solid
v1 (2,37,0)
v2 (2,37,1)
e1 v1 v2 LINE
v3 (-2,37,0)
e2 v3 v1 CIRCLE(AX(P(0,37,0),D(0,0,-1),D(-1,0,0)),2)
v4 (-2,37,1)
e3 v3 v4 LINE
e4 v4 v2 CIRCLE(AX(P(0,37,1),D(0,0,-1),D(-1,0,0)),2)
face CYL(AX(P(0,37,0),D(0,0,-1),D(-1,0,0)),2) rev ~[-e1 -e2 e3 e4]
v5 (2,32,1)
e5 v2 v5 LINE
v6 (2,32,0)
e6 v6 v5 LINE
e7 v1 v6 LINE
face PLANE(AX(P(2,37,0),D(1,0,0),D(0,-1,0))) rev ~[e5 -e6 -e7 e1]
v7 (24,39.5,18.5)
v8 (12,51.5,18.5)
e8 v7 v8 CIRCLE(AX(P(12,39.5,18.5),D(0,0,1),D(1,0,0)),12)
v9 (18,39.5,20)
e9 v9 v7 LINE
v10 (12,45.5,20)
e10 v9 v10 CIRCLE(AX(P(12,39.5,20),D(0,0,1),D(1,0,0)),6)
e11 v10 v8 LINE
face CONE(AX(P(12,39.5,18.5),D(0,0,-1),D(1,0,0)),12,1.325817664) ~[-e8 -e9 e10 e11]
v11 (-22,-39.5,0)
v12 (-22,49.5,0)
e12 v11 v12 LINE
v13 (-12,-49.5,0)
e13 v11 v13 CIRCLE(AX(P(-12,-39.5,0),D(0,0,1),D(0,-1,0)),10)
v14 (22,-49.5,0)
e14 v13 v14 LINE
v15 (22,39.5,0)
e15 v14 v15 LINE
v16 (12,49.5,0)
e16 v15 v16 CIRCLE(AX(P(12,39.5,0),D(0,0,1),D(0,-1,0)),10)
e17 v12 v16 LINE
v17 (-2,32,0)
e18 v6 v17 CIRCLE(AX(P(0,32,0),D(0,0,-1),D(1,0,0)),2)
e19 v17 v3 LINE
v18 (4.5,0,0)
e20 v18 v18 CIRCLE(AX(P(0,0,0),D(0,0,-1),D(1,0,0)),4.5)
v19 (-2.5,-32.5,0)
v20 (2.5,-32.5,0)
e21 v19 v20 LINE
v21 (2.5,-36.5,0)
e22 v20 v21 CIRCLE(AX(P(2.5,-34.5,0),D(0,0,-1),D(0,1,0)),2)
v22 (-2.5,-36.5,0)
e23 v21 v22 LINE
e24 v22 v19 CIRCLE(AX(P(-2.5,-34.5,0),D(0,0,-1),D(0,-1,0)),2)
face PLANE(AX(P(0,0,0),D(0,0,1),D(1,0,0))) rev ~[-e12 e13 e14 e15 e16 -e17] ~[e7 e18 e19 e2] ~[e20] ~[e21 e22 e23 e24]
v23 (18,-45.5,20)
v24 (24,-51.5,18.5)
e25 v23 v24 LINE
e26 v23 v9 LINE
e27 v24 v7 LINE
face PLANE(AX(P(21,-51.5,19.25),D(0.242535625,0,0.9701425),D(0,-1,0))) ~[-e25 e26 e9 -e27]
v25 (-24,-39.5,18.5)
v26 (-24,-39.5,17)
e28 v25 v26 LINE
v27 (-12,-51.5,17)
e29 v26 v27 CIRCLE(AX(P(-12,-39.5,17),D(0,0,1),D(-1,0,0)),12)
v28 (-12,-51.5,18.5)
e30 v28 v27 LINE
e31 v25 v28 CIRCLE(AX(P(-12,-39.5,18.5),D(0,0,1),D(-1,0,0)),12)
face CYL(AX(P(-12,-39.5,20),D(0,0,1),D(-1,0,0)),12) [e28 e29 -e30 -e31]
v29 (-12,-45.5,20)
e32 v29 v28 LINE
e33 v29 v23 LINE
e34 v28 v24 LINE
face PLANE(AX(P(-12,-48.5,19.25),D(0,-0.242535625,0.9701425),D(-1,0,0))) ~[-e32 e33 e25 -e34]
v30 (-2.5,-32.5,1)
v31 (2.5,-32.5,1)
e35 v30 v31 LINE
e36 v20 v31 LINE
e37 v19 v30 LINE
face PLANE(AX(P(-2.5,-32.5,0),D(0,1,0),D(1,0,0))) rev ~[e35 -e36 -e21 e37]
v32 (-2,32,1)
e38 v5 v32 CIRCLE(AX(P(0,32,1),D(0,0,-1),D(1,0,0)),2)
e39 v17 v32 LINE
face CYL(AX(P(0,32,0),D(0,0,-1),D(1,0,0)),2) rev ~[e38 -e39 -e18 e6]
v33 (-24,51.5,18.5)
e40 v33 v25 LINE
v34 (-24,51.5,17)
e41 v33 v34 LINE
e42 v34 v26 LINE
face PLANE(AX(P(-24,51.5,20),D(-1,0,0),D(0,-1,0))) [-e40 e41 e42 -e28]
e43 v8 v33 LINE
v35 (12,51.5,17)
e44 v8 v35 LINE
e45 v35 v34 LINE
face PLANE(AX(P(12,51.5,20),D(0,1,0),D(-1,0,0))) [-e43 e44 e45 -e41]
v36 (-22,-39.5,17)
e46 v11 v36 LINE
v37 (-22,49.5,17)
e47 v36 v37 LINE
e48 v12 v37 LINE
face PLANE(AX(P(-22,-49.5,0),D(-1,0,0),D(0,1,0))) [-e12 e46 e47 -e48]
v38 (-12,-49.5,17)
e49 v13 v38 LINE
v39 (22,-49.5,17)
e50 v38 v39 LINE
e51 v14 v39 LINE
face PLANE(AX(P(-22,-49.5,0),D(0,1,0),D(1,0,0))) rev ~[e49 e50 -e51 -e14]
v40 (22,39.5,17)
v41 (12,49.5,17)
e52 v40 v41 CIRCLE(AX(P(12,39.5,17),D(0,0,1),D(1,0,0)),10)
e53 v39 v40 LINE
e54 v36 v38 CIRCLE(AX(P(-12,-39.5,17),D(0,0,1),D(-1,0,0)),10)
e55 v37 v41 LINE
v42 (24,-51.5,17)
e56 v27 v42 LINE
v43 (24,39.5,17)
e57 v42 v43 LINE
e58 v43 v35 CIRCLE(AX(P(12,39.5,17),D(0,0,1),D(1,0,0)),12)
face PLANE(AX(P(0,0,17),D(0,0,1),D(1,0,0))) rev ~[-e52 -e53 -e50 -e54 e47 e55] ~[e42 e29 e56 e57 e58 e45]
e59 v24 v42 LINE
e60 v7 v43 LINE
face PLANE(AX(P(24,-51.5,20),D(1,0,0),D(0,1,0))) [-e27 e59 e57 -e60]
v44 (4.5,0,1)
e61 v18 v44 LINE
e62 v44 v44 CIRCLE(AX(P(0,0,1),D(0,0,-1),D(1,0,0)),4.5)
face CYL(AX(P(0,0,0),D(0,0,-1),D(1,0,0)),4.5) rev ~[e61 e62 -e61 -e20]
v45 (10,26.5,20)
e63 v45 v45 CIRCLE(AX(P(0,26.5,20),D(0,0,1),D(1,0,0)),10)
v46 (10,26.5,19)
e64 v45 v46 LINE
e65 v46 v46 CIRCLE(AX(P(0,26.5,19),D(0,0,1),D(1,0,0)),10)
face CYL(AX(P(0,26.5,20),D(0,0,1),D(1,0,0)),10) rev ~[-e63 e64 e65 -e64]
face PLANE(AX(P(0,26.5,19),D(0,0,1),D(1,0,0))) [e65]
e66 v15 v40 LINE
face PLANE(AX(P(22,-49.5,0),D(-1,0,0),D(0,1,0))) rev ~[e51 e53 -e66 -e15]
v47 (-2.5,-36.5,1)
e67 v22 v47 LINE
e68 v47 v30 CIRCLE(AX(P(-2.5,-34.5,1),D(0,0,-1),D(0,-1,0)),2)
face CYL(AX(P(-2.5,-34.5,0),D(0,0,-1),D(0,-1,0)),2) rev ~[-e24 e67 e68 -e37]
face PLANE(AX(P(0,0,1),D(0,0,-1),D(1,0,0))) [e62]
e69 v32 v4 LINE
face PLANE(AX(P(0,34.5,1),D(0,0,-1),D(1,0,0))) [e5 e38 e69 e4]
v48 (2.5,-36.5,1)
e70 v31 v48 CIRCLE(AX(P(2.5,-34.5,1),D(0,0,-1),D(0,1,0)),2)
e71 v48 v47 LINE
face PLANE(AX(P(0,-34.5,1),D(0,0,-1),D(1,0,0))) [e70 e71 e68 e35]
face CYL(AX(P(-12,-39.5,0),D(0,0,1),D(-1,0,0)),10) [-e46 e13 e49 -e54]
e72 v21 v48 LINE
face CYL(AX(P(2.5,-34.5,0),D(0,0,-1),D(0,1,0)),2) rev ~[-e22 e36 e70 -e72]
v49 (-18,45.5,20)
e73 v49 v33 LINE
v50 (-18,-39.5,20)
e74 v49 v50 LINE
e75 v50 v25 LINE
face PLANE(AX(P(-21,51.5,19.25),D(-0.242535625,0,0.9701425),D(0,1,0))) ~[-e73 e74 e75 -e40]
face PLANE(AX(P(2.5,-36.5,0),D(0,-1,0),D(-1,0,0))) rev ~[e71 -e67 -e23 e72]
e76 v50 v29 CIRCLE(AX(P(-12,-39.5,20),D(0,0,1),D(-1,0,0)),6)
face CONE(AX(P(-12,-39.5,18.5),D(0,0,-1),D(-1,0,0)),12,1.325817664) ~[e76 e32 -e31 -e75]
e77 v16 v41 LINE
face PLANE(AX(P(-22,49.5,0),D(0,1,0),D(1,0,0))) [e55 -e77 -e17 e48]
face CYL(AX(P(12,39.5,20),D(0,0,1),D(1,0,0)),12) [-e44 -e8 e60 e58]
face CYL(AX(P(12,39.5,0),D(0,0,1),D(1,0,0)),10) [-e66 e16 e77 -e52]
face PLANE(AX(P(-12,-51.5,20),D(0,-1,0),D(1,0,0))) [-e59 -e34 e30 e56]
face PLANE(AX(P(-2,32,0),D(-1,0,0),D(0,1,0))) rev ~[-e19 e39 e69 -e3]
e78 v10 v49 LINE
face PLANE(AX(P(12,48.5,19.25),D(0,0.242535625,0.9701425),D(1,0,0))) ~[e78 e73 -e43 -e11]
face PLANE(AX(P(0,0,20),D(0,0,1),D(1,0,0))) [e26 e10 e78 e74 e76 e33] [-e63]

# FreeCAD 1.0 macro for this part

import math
import FreeCAD as App
import Part
import Sketcher
from FreeCAD import Vector


def edges_at(feature, points):
    """Names of the edges that pass closest to the given points."""
    edges = feature.Shape.Edges
    near = lambda p: min(range(len(edges)), key=lambda i: edges[i].distToShape(Part.Vertex(*p))[0])
    return sorted({f"Edge{near(p) + 1}" for p in points})

doc = App.newDocument("Part")
body = doc.addObject("PartDesign::Body", "Body")

sketch1 = body.newObject("Sketcher::SketchObject", "Sketch")
sketch1.AttachmentSupport = (doc.getObject("XY_Plane"), [""])
sketch1.MapMode = "FlatFace"
sketch1.addGeometry([
    Part.LineSegment(Vector(-22, 50, 0), Vector(-22, -50, 0)),
    Part.LineSegment(Vector(-22, -50, 0), Vector(22, -50, 0)),
    Part.LineSegment(Vector(22, -50, 0), Vector(22, 50, 0)),
    Part.LineSegment(Vector(22, 50, 0), Vector(-22, 50, 0)),
], False)
sketch1.addConstraint([
    Sketcher.Constraint("Coincident", 0, 2, 1, 1),
    Sketcher.Constraint("Coincident", 1, 2, 2, 1),
    Sketcher.Constraint("Coincident", 2, 2, 3, 1),
    Sketcher.Constraint("Coincident", 3, 2, 0, 1),
    Sketcher.Constraint("Vertical", 0),
    Sketcher.Constraint("Horizontal", 1),
    Sketcher.Constraint("Vertical", 2),
    Sketcher.Constraint("Horizontal", 3),
    Sketcher.Constraint("Symmetric", 0, 2, 2, 2, -1, 1),
    Sketcher.Constraint("DistanceX", 1, 1, 1, 2, 44.0),
    Sketcher.Constraint("DistanceY", 0, 2, 0, 1, 99.0),
])
pad1 = body.newObject("PartDesign::Pad", "Pad")
pad1.Profile = sketch1
pad1.Length = 20
doc.recompute()

fillet = body.newObject("PartDesign::Fillet", "Fillet")
fillet.Base = (pad1, edges_at(pad1, [(22, 49.5, 10), (-22, -49.5, 10)]))
fillet.Radius = 10

sketch2 = body.newObject("Sketcher::SketchObject", "Sketch001")
sketch2.AttachmentSupport = (doc.getObject("XY_Plane"), [""])
sketch2.MapMode = "FlatFace"
sketch2.AttachmentOffset = App.Placement(Vector(0, 0, 20), App.Rotation())
sketch2.addGeometry([
    Part.ArcOfCircle(Part.Circle(Vector(12, 40, 0), Vector(0, 0, 1), 12), math.radians(0), math.radians(90)),
    Part.LineSegment(Vector(12, 52, 0), Vector(-24, 52, 0)),
    Part.LineSegment(Vector(-24, 52, 0), Vector(-24, -40, 0)),
    Part.ArcOfCircle(Part.Circle(Vector(-12, -40, 0), Vector(0, 0, 1), 12), math.radians(180), math.radians(270)),
    Part.LineSegment(Vector(-12, -52, 0), Vector(24, -52, 0)),
    Part.LineSegment(Vector(24, -52, 0), Vector(24, 40, 0)),
], False)
sketch2.addConstraint([
    Sketcher.Constraint("Tangent", 0, 2, 1, 1),
    Sketcher.Constraint("Coincident", 1, 2, 2, 1),
    Sketcher.Constraint("Tangent", 2, 2, 3, 1),
    Sketcher.Constraint("Tangent", 3, 2, 4, 1),
    Sketcher.Constraint("Coincident", 4, 2, 5, 1),
    Sketcher.Constraint("Tangent", 5, 2, 0, 1),
    Sketcher.Constraint("Horizontal", 1),
    Sketcher.Constraint("Vertical", 2),
    Sketcher.Constraint("Horizontal", 4),
    Sketcher.Constraint("Vertical", 5),
    Sketcher.Constraint("Equal", 0, 3),
    Sketcher.Constraint("Symmetric", 0, 3, 3, 3, -1, 1),
    Sketcher.Constraint("Radius", 0, 12.0),
    Sketcher.Constraint("DistanceX", 1, 2, 1, 1, 36.0),
    Sketcher.Constraint("DistanceY", 2, 2, 2, 1, 91.0),
])
pad2 = body.newObject("PartDesign::Pad", "Pad001")
pad2.Profile = sketch2
pad2.Length = 3
pad2.Reversed = True
doc.recompute()

chamfer = body.newObject("PartDesign::Chamfer", "Chamfer")
chamfer.Base = (pad2, edges_at(pad2, [
    (20.485, 47.985, 20),
    (-6, 51.5, 20),
    (-24, 6, 20),
    (-20.485, -47.985, 20),
    (6, -51.5, 20),
    (24, -6, 20),
]))
chamfer.ChamferType = "Two distances"
chamfer.Size = 6
chamfer.Size2 = 1.5
chamfer.FlipDirection = True

sketch3 = body.newObject("Sketcher::SketchObject", "Sketch002")
sketch3.AttachmentSupport = (doc.getObject("XY_Plane"), [""])
sketch3.MapMode = "FlatFace"
sketch3.AttachmentOffset = App.Placement(Vector(0, 0, 20), App.Rotation())
sketch3.addGeometry(Part.Circle(Vector(0, 26, 0), Vector(0, 0, 1), 10), False)
sketch3.addConstraint([
    Sketcher.Constraint("PointOnObject", 0, 3, -2),
    Sketcher.Constraint("Diameter", 0, 20.0),
    Sketcher.Constraint("DistanceY", -1, 1, 0, 3, 26.5),
])
pocket1 = body.newObject("PartDesign::Pocket", "Pocket")
pocket1.Profile = sketch3
pocket1.Length = 1

sketch4 = body.newObject("Sketcher::SketchObject", "Sketch003")
sketch4.AttachmentSupport = (doc.getObject("XY_Plane"), [""])
sketch4.MapMode = "FlatFace"
sketch4.addGeometry([
    Part.Circle(Vector(0, 0, 0), Vector(0, 0, 1), 4.5),
    Part.LineSegment(Vector(-2, 32, 0), Vector(-2, 37, 0)),
    Part.ArcOfCircle(Part.Circle(Vector(0, 37, 0), Vector(0, 0, 1), 2), math.radians(0), math.radians(180)),
    Part.LineSegment(Vector(2, 37, 0), Vector(2, 32, 0)),
    Part.ArcOfCircle(Part.Circle(Vector(0, 32, 0), Vector(0, 0, 1), 2), math.radians(180), math.radians(360)),
    Part.LineSegment(Vector(2.5, -36.5, 0), Vector(-2.5, -36.5, 0)),
    Part.ArcOfCircle(Part.Circle(Vector(-2.5, -34.5, 0), Vector(0, 0, 1), 2), math.radians(90), math.radians(270)),
    Part.LineSegment(Vector(-2.5, -32.5, 0), Vector(2.5, -32.5, 0)),
    Part.ArcOfCircle(Part.Circle(Vector(2.5, -34.5, 0), Vector(0, 0, 1), 2), math.radians(-90), math.radians(90)),
], False)
sketch4.addConstraint([
    Sketcher.Constraint("Tangent", 1, 2, 2, 2),
    Sketcher.Constraint("Tangent", 2, 1, 3, 1),
    Sketcher.Constraint("Tangent", 3, 2, 4, 2),
    Sketcher.Constraint("Tangent", 4, 1, 1, 1),
    Sketcher.Constraint("Tangent", 5, 2, 6, 2),
    Sketcher.Constraint("Tangent", 6, 1, 7, 1),
    Sketcher.Constraint("Tangent", 7, 2, 8, 2),
    Sketcher.Constraint("Tangent", 8, 1, 5, 1),
    Sketcher.Constraint("Vertical", 1),
    Sketcher.Constraint("Vertical", 3),
    Sketcher.Constraint("Horizontal", 5),
    Sketcher.Constraint("Horizontal", 7),
    Sketcher.Constraint("Coincident", 0, 3, -1, 1),
    Sketcher.Constraint("Equal", 4, 6),
    Sketcher.Constraint("PointOnObject", 2, 3, -2),
    Sketcher.Constraint("Equal", 7, 1),
    Sketcher.Constraint("Diameter", 0, 9.0),
    Sketcher.Constraint("Radius", 2, 2.0),
    Sketcher.Constraint("DistanceX", 5, 2, 5, 1, 5.0),
    Sketcher.Constraint("DistanceY", -1, 1, 2, 3, 37.0),
    Sketcher.Constraint("DistanceX", 6, 3, -1, 1, 2.5),
    Sketcher.Constraint("DistanceY", 6, 3, -1, 1, 34.5),
])
pocket2 = body.newObject("PartDesign::Pocket", "Pocket001")
pocket2.Profile = sketch4
pocket2.Length = 1
pocket2.Reversed = True

doc.recompute()
